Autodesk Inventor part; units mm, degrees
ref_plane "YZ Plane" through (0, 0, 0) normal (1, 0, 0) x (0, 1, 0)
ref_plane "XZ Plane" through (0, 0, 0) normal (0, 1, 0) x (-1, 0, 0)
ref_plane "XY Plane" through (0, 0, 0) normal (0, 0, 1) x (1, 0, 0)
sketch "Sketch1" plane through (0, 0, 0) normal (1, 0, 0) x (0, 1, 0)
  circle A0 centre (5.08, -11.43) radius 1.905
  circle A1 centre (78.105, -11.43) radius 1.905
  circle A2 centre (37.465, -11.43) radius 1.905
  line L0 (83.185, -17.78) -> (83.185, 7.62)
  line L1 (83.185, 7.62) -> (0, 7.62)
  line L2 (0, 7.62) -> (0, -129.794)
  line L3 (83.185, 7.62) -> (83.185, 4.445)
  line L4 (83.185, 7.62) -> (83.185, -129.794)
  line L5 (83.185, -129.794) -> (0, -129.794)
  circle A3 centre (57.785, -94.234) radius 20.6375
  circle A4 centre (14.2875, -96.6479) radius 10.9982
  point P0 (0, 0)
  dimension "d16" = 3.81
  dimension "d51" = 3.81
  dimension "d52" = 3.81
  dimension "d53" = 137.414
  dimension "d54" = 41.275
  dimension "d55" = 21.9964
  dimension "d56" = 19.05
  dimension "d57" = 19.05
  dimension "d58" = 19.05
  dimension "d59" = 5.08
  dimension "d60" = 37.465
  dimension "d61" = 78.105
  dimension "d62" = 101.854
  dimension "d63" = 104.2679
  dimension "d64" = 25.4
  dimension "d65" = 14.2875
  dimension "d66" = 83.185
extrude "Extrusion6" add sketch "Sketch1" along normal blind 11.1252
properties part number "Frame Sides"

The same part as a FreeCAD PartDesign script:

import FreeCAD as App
import Part
import Sketcher
Q = App.Units.Quantity


def add_polygon(sketch, points):
    """Adds a closed chain of lines whose ends are joined by coincident constraints."""
    first, n = sketch.GeometryCount, len(points)
    for a, b in zip(points, points[1:] + points[:1]):
        sketch.addGeometry(Part.LineSegment(App.Vector(*a, 0), App.Vector(*b, 0)), False)
    for i in range(n):
        sketch.addConstraint(Sketcher.Constraint("Coincident", first + i, 2, first + (i + 1) % n, 1))

doc = App.newDocument("Part")
params = doc.addObject("Spreadsheet::Sheet", "Params")
for row, (alias, value) in enumerate([
    ("sketch1_diameter", "0.15 in"),
    ("sketch1_diameter2", "0.866 in"),
    ("sketch1_diameter3", "1.625 in"),
    ("sketch1_height", "5.41 in"),
    ("sketch1_width", "3.275 in"),
    ("pad1_length", "0.438 in"),
], start=1):
    params.set(f"A{row}", alias)
    params.set(f"B{row}", "=" + value)
    params.setAlias(f"B{row}", alias)

body = doc.addObject("PartDesign::Body", "Body")

sketch1 = doc.addObject("Sketcher::SketchObject", "Sketch")
body.addObject(sketch1)
sketch1.AttachmentSupport = (doc.YZ_Plane, [""])
sketch1.MapMode = "FlatFace"
add_polygon(sketch1, [(83.2, -129.8), (83.2, 7.6), (0, 7.6), (0, -129.8)])
sketch1.addGeometry(Part.Circle(App.Vector(14.3, -96.6, 0), App.Vector(0, 0, 1), 11), False)
sketch1.addGeometry(Part.Circle(App.Vector(57.8, -94.2, 0), App.Vector(0, 0, 1), 20.6), False)
sketch1.addGeometry(Part.Circle(App.Vector(5.1, -11.4, 0), App.Vector(0, 0, 1), 1.9), False)
sketch1.addGeometry(Part.Circle(App.Vector(37.5, -11.4, 0), App.Vector(0, 0, 1), 1.9), False)
sketch1.addGeometry(Part.Circle(App.Vector(78.1, -11.4, 0), App.Vector(0, 0, 1), 1.9), False)
sketch1.addConstraint([
    Sketcher.Constraint("Vertical", 0),
    Sketcher.Constraint("Horizontal", 1),
    Sketcher.Constraint("Vertical", 2),
    Sketcher.Constraint("Horizontal", 3),
    Sketcher.Constraint("Equal", 6, 7),
    Sketcher.Constraint("Equal", 7, 8),
    Sketcher.Constraint("PointOnObject", 1, 2, -2),
    Sketcher.Constraint("Horizontal", 6, 3, 7, 3),
    Sketcher.Constraint("Horizontal", 7, 3, 8, 3),
    Sketcher.Constraint("Diameter", 6, Q("0.15 in")),
    Sketcher.Constraint("Diameter", 4, Q("0.866 in")),
    Sketcher.Constraint("Diameter", 5, Q("1.625 in")),
    Sketcher.Constraint("DistanceX", 5, 3, 0, 2, Q("1 in")),
    Sketcher.Constraint("DistanceY", 0, 1, 0, 2, Q("5.41 in")),
    Sketcher.Constraint("DistanceX", -1, 1, 6, 3, Q("0.2 in")),
    Sketcher.Constraint("DistanceX", 8, 3, 0, 2, Q("0.2 in")),
    Sketcher.Constraint("DistanceX", 1, 2, 1, 1, Q("3.275 in")),
    Sketcher.Constraint("DistanceY", 8, 3, 0, 2, Q("0.75 in")),
    Sketcher.Constraint("DistanceY", 5, 3, 0, 2, Q("4.01 in")),
    Sketcher.Constraint("DistanceX", -1, 1, 4, 3, Q("0.5625 in")),
    Sketcher.Constraint("DistanceX", -1, 1, 7, 3, Q("1.475 in")),
    Sketcher.Constraint("DistanceY", -1, 1, 0, 2, Q("0.3 in")),
    Sketcher.Constraint("DistanceY", 4, 3, 0, 2, Q("104.268 mm")),
])
sketch1.setExpression("Constraints[13]", "Params.sketch1_diameter")
sketch1.setExpression("Constraints[14]", "Params.sketch1_diameter2")
sketch1.setExpression("Constraints[15]", "Params.sketch1_diameter3")
sketch1.setExpression("Constraints[17]", "Params.sketch1_height")
sketch1.setExpression("Constraints[20]", "Params.sketch1_width")
pad1 = doc.addObject("PartDesign::Pad", "Pad")
body.addObject(pad1)
pad1.Profile = sketch1
pad1.setExpression("Length", "Params.pad1_length")

doc.recompute()
